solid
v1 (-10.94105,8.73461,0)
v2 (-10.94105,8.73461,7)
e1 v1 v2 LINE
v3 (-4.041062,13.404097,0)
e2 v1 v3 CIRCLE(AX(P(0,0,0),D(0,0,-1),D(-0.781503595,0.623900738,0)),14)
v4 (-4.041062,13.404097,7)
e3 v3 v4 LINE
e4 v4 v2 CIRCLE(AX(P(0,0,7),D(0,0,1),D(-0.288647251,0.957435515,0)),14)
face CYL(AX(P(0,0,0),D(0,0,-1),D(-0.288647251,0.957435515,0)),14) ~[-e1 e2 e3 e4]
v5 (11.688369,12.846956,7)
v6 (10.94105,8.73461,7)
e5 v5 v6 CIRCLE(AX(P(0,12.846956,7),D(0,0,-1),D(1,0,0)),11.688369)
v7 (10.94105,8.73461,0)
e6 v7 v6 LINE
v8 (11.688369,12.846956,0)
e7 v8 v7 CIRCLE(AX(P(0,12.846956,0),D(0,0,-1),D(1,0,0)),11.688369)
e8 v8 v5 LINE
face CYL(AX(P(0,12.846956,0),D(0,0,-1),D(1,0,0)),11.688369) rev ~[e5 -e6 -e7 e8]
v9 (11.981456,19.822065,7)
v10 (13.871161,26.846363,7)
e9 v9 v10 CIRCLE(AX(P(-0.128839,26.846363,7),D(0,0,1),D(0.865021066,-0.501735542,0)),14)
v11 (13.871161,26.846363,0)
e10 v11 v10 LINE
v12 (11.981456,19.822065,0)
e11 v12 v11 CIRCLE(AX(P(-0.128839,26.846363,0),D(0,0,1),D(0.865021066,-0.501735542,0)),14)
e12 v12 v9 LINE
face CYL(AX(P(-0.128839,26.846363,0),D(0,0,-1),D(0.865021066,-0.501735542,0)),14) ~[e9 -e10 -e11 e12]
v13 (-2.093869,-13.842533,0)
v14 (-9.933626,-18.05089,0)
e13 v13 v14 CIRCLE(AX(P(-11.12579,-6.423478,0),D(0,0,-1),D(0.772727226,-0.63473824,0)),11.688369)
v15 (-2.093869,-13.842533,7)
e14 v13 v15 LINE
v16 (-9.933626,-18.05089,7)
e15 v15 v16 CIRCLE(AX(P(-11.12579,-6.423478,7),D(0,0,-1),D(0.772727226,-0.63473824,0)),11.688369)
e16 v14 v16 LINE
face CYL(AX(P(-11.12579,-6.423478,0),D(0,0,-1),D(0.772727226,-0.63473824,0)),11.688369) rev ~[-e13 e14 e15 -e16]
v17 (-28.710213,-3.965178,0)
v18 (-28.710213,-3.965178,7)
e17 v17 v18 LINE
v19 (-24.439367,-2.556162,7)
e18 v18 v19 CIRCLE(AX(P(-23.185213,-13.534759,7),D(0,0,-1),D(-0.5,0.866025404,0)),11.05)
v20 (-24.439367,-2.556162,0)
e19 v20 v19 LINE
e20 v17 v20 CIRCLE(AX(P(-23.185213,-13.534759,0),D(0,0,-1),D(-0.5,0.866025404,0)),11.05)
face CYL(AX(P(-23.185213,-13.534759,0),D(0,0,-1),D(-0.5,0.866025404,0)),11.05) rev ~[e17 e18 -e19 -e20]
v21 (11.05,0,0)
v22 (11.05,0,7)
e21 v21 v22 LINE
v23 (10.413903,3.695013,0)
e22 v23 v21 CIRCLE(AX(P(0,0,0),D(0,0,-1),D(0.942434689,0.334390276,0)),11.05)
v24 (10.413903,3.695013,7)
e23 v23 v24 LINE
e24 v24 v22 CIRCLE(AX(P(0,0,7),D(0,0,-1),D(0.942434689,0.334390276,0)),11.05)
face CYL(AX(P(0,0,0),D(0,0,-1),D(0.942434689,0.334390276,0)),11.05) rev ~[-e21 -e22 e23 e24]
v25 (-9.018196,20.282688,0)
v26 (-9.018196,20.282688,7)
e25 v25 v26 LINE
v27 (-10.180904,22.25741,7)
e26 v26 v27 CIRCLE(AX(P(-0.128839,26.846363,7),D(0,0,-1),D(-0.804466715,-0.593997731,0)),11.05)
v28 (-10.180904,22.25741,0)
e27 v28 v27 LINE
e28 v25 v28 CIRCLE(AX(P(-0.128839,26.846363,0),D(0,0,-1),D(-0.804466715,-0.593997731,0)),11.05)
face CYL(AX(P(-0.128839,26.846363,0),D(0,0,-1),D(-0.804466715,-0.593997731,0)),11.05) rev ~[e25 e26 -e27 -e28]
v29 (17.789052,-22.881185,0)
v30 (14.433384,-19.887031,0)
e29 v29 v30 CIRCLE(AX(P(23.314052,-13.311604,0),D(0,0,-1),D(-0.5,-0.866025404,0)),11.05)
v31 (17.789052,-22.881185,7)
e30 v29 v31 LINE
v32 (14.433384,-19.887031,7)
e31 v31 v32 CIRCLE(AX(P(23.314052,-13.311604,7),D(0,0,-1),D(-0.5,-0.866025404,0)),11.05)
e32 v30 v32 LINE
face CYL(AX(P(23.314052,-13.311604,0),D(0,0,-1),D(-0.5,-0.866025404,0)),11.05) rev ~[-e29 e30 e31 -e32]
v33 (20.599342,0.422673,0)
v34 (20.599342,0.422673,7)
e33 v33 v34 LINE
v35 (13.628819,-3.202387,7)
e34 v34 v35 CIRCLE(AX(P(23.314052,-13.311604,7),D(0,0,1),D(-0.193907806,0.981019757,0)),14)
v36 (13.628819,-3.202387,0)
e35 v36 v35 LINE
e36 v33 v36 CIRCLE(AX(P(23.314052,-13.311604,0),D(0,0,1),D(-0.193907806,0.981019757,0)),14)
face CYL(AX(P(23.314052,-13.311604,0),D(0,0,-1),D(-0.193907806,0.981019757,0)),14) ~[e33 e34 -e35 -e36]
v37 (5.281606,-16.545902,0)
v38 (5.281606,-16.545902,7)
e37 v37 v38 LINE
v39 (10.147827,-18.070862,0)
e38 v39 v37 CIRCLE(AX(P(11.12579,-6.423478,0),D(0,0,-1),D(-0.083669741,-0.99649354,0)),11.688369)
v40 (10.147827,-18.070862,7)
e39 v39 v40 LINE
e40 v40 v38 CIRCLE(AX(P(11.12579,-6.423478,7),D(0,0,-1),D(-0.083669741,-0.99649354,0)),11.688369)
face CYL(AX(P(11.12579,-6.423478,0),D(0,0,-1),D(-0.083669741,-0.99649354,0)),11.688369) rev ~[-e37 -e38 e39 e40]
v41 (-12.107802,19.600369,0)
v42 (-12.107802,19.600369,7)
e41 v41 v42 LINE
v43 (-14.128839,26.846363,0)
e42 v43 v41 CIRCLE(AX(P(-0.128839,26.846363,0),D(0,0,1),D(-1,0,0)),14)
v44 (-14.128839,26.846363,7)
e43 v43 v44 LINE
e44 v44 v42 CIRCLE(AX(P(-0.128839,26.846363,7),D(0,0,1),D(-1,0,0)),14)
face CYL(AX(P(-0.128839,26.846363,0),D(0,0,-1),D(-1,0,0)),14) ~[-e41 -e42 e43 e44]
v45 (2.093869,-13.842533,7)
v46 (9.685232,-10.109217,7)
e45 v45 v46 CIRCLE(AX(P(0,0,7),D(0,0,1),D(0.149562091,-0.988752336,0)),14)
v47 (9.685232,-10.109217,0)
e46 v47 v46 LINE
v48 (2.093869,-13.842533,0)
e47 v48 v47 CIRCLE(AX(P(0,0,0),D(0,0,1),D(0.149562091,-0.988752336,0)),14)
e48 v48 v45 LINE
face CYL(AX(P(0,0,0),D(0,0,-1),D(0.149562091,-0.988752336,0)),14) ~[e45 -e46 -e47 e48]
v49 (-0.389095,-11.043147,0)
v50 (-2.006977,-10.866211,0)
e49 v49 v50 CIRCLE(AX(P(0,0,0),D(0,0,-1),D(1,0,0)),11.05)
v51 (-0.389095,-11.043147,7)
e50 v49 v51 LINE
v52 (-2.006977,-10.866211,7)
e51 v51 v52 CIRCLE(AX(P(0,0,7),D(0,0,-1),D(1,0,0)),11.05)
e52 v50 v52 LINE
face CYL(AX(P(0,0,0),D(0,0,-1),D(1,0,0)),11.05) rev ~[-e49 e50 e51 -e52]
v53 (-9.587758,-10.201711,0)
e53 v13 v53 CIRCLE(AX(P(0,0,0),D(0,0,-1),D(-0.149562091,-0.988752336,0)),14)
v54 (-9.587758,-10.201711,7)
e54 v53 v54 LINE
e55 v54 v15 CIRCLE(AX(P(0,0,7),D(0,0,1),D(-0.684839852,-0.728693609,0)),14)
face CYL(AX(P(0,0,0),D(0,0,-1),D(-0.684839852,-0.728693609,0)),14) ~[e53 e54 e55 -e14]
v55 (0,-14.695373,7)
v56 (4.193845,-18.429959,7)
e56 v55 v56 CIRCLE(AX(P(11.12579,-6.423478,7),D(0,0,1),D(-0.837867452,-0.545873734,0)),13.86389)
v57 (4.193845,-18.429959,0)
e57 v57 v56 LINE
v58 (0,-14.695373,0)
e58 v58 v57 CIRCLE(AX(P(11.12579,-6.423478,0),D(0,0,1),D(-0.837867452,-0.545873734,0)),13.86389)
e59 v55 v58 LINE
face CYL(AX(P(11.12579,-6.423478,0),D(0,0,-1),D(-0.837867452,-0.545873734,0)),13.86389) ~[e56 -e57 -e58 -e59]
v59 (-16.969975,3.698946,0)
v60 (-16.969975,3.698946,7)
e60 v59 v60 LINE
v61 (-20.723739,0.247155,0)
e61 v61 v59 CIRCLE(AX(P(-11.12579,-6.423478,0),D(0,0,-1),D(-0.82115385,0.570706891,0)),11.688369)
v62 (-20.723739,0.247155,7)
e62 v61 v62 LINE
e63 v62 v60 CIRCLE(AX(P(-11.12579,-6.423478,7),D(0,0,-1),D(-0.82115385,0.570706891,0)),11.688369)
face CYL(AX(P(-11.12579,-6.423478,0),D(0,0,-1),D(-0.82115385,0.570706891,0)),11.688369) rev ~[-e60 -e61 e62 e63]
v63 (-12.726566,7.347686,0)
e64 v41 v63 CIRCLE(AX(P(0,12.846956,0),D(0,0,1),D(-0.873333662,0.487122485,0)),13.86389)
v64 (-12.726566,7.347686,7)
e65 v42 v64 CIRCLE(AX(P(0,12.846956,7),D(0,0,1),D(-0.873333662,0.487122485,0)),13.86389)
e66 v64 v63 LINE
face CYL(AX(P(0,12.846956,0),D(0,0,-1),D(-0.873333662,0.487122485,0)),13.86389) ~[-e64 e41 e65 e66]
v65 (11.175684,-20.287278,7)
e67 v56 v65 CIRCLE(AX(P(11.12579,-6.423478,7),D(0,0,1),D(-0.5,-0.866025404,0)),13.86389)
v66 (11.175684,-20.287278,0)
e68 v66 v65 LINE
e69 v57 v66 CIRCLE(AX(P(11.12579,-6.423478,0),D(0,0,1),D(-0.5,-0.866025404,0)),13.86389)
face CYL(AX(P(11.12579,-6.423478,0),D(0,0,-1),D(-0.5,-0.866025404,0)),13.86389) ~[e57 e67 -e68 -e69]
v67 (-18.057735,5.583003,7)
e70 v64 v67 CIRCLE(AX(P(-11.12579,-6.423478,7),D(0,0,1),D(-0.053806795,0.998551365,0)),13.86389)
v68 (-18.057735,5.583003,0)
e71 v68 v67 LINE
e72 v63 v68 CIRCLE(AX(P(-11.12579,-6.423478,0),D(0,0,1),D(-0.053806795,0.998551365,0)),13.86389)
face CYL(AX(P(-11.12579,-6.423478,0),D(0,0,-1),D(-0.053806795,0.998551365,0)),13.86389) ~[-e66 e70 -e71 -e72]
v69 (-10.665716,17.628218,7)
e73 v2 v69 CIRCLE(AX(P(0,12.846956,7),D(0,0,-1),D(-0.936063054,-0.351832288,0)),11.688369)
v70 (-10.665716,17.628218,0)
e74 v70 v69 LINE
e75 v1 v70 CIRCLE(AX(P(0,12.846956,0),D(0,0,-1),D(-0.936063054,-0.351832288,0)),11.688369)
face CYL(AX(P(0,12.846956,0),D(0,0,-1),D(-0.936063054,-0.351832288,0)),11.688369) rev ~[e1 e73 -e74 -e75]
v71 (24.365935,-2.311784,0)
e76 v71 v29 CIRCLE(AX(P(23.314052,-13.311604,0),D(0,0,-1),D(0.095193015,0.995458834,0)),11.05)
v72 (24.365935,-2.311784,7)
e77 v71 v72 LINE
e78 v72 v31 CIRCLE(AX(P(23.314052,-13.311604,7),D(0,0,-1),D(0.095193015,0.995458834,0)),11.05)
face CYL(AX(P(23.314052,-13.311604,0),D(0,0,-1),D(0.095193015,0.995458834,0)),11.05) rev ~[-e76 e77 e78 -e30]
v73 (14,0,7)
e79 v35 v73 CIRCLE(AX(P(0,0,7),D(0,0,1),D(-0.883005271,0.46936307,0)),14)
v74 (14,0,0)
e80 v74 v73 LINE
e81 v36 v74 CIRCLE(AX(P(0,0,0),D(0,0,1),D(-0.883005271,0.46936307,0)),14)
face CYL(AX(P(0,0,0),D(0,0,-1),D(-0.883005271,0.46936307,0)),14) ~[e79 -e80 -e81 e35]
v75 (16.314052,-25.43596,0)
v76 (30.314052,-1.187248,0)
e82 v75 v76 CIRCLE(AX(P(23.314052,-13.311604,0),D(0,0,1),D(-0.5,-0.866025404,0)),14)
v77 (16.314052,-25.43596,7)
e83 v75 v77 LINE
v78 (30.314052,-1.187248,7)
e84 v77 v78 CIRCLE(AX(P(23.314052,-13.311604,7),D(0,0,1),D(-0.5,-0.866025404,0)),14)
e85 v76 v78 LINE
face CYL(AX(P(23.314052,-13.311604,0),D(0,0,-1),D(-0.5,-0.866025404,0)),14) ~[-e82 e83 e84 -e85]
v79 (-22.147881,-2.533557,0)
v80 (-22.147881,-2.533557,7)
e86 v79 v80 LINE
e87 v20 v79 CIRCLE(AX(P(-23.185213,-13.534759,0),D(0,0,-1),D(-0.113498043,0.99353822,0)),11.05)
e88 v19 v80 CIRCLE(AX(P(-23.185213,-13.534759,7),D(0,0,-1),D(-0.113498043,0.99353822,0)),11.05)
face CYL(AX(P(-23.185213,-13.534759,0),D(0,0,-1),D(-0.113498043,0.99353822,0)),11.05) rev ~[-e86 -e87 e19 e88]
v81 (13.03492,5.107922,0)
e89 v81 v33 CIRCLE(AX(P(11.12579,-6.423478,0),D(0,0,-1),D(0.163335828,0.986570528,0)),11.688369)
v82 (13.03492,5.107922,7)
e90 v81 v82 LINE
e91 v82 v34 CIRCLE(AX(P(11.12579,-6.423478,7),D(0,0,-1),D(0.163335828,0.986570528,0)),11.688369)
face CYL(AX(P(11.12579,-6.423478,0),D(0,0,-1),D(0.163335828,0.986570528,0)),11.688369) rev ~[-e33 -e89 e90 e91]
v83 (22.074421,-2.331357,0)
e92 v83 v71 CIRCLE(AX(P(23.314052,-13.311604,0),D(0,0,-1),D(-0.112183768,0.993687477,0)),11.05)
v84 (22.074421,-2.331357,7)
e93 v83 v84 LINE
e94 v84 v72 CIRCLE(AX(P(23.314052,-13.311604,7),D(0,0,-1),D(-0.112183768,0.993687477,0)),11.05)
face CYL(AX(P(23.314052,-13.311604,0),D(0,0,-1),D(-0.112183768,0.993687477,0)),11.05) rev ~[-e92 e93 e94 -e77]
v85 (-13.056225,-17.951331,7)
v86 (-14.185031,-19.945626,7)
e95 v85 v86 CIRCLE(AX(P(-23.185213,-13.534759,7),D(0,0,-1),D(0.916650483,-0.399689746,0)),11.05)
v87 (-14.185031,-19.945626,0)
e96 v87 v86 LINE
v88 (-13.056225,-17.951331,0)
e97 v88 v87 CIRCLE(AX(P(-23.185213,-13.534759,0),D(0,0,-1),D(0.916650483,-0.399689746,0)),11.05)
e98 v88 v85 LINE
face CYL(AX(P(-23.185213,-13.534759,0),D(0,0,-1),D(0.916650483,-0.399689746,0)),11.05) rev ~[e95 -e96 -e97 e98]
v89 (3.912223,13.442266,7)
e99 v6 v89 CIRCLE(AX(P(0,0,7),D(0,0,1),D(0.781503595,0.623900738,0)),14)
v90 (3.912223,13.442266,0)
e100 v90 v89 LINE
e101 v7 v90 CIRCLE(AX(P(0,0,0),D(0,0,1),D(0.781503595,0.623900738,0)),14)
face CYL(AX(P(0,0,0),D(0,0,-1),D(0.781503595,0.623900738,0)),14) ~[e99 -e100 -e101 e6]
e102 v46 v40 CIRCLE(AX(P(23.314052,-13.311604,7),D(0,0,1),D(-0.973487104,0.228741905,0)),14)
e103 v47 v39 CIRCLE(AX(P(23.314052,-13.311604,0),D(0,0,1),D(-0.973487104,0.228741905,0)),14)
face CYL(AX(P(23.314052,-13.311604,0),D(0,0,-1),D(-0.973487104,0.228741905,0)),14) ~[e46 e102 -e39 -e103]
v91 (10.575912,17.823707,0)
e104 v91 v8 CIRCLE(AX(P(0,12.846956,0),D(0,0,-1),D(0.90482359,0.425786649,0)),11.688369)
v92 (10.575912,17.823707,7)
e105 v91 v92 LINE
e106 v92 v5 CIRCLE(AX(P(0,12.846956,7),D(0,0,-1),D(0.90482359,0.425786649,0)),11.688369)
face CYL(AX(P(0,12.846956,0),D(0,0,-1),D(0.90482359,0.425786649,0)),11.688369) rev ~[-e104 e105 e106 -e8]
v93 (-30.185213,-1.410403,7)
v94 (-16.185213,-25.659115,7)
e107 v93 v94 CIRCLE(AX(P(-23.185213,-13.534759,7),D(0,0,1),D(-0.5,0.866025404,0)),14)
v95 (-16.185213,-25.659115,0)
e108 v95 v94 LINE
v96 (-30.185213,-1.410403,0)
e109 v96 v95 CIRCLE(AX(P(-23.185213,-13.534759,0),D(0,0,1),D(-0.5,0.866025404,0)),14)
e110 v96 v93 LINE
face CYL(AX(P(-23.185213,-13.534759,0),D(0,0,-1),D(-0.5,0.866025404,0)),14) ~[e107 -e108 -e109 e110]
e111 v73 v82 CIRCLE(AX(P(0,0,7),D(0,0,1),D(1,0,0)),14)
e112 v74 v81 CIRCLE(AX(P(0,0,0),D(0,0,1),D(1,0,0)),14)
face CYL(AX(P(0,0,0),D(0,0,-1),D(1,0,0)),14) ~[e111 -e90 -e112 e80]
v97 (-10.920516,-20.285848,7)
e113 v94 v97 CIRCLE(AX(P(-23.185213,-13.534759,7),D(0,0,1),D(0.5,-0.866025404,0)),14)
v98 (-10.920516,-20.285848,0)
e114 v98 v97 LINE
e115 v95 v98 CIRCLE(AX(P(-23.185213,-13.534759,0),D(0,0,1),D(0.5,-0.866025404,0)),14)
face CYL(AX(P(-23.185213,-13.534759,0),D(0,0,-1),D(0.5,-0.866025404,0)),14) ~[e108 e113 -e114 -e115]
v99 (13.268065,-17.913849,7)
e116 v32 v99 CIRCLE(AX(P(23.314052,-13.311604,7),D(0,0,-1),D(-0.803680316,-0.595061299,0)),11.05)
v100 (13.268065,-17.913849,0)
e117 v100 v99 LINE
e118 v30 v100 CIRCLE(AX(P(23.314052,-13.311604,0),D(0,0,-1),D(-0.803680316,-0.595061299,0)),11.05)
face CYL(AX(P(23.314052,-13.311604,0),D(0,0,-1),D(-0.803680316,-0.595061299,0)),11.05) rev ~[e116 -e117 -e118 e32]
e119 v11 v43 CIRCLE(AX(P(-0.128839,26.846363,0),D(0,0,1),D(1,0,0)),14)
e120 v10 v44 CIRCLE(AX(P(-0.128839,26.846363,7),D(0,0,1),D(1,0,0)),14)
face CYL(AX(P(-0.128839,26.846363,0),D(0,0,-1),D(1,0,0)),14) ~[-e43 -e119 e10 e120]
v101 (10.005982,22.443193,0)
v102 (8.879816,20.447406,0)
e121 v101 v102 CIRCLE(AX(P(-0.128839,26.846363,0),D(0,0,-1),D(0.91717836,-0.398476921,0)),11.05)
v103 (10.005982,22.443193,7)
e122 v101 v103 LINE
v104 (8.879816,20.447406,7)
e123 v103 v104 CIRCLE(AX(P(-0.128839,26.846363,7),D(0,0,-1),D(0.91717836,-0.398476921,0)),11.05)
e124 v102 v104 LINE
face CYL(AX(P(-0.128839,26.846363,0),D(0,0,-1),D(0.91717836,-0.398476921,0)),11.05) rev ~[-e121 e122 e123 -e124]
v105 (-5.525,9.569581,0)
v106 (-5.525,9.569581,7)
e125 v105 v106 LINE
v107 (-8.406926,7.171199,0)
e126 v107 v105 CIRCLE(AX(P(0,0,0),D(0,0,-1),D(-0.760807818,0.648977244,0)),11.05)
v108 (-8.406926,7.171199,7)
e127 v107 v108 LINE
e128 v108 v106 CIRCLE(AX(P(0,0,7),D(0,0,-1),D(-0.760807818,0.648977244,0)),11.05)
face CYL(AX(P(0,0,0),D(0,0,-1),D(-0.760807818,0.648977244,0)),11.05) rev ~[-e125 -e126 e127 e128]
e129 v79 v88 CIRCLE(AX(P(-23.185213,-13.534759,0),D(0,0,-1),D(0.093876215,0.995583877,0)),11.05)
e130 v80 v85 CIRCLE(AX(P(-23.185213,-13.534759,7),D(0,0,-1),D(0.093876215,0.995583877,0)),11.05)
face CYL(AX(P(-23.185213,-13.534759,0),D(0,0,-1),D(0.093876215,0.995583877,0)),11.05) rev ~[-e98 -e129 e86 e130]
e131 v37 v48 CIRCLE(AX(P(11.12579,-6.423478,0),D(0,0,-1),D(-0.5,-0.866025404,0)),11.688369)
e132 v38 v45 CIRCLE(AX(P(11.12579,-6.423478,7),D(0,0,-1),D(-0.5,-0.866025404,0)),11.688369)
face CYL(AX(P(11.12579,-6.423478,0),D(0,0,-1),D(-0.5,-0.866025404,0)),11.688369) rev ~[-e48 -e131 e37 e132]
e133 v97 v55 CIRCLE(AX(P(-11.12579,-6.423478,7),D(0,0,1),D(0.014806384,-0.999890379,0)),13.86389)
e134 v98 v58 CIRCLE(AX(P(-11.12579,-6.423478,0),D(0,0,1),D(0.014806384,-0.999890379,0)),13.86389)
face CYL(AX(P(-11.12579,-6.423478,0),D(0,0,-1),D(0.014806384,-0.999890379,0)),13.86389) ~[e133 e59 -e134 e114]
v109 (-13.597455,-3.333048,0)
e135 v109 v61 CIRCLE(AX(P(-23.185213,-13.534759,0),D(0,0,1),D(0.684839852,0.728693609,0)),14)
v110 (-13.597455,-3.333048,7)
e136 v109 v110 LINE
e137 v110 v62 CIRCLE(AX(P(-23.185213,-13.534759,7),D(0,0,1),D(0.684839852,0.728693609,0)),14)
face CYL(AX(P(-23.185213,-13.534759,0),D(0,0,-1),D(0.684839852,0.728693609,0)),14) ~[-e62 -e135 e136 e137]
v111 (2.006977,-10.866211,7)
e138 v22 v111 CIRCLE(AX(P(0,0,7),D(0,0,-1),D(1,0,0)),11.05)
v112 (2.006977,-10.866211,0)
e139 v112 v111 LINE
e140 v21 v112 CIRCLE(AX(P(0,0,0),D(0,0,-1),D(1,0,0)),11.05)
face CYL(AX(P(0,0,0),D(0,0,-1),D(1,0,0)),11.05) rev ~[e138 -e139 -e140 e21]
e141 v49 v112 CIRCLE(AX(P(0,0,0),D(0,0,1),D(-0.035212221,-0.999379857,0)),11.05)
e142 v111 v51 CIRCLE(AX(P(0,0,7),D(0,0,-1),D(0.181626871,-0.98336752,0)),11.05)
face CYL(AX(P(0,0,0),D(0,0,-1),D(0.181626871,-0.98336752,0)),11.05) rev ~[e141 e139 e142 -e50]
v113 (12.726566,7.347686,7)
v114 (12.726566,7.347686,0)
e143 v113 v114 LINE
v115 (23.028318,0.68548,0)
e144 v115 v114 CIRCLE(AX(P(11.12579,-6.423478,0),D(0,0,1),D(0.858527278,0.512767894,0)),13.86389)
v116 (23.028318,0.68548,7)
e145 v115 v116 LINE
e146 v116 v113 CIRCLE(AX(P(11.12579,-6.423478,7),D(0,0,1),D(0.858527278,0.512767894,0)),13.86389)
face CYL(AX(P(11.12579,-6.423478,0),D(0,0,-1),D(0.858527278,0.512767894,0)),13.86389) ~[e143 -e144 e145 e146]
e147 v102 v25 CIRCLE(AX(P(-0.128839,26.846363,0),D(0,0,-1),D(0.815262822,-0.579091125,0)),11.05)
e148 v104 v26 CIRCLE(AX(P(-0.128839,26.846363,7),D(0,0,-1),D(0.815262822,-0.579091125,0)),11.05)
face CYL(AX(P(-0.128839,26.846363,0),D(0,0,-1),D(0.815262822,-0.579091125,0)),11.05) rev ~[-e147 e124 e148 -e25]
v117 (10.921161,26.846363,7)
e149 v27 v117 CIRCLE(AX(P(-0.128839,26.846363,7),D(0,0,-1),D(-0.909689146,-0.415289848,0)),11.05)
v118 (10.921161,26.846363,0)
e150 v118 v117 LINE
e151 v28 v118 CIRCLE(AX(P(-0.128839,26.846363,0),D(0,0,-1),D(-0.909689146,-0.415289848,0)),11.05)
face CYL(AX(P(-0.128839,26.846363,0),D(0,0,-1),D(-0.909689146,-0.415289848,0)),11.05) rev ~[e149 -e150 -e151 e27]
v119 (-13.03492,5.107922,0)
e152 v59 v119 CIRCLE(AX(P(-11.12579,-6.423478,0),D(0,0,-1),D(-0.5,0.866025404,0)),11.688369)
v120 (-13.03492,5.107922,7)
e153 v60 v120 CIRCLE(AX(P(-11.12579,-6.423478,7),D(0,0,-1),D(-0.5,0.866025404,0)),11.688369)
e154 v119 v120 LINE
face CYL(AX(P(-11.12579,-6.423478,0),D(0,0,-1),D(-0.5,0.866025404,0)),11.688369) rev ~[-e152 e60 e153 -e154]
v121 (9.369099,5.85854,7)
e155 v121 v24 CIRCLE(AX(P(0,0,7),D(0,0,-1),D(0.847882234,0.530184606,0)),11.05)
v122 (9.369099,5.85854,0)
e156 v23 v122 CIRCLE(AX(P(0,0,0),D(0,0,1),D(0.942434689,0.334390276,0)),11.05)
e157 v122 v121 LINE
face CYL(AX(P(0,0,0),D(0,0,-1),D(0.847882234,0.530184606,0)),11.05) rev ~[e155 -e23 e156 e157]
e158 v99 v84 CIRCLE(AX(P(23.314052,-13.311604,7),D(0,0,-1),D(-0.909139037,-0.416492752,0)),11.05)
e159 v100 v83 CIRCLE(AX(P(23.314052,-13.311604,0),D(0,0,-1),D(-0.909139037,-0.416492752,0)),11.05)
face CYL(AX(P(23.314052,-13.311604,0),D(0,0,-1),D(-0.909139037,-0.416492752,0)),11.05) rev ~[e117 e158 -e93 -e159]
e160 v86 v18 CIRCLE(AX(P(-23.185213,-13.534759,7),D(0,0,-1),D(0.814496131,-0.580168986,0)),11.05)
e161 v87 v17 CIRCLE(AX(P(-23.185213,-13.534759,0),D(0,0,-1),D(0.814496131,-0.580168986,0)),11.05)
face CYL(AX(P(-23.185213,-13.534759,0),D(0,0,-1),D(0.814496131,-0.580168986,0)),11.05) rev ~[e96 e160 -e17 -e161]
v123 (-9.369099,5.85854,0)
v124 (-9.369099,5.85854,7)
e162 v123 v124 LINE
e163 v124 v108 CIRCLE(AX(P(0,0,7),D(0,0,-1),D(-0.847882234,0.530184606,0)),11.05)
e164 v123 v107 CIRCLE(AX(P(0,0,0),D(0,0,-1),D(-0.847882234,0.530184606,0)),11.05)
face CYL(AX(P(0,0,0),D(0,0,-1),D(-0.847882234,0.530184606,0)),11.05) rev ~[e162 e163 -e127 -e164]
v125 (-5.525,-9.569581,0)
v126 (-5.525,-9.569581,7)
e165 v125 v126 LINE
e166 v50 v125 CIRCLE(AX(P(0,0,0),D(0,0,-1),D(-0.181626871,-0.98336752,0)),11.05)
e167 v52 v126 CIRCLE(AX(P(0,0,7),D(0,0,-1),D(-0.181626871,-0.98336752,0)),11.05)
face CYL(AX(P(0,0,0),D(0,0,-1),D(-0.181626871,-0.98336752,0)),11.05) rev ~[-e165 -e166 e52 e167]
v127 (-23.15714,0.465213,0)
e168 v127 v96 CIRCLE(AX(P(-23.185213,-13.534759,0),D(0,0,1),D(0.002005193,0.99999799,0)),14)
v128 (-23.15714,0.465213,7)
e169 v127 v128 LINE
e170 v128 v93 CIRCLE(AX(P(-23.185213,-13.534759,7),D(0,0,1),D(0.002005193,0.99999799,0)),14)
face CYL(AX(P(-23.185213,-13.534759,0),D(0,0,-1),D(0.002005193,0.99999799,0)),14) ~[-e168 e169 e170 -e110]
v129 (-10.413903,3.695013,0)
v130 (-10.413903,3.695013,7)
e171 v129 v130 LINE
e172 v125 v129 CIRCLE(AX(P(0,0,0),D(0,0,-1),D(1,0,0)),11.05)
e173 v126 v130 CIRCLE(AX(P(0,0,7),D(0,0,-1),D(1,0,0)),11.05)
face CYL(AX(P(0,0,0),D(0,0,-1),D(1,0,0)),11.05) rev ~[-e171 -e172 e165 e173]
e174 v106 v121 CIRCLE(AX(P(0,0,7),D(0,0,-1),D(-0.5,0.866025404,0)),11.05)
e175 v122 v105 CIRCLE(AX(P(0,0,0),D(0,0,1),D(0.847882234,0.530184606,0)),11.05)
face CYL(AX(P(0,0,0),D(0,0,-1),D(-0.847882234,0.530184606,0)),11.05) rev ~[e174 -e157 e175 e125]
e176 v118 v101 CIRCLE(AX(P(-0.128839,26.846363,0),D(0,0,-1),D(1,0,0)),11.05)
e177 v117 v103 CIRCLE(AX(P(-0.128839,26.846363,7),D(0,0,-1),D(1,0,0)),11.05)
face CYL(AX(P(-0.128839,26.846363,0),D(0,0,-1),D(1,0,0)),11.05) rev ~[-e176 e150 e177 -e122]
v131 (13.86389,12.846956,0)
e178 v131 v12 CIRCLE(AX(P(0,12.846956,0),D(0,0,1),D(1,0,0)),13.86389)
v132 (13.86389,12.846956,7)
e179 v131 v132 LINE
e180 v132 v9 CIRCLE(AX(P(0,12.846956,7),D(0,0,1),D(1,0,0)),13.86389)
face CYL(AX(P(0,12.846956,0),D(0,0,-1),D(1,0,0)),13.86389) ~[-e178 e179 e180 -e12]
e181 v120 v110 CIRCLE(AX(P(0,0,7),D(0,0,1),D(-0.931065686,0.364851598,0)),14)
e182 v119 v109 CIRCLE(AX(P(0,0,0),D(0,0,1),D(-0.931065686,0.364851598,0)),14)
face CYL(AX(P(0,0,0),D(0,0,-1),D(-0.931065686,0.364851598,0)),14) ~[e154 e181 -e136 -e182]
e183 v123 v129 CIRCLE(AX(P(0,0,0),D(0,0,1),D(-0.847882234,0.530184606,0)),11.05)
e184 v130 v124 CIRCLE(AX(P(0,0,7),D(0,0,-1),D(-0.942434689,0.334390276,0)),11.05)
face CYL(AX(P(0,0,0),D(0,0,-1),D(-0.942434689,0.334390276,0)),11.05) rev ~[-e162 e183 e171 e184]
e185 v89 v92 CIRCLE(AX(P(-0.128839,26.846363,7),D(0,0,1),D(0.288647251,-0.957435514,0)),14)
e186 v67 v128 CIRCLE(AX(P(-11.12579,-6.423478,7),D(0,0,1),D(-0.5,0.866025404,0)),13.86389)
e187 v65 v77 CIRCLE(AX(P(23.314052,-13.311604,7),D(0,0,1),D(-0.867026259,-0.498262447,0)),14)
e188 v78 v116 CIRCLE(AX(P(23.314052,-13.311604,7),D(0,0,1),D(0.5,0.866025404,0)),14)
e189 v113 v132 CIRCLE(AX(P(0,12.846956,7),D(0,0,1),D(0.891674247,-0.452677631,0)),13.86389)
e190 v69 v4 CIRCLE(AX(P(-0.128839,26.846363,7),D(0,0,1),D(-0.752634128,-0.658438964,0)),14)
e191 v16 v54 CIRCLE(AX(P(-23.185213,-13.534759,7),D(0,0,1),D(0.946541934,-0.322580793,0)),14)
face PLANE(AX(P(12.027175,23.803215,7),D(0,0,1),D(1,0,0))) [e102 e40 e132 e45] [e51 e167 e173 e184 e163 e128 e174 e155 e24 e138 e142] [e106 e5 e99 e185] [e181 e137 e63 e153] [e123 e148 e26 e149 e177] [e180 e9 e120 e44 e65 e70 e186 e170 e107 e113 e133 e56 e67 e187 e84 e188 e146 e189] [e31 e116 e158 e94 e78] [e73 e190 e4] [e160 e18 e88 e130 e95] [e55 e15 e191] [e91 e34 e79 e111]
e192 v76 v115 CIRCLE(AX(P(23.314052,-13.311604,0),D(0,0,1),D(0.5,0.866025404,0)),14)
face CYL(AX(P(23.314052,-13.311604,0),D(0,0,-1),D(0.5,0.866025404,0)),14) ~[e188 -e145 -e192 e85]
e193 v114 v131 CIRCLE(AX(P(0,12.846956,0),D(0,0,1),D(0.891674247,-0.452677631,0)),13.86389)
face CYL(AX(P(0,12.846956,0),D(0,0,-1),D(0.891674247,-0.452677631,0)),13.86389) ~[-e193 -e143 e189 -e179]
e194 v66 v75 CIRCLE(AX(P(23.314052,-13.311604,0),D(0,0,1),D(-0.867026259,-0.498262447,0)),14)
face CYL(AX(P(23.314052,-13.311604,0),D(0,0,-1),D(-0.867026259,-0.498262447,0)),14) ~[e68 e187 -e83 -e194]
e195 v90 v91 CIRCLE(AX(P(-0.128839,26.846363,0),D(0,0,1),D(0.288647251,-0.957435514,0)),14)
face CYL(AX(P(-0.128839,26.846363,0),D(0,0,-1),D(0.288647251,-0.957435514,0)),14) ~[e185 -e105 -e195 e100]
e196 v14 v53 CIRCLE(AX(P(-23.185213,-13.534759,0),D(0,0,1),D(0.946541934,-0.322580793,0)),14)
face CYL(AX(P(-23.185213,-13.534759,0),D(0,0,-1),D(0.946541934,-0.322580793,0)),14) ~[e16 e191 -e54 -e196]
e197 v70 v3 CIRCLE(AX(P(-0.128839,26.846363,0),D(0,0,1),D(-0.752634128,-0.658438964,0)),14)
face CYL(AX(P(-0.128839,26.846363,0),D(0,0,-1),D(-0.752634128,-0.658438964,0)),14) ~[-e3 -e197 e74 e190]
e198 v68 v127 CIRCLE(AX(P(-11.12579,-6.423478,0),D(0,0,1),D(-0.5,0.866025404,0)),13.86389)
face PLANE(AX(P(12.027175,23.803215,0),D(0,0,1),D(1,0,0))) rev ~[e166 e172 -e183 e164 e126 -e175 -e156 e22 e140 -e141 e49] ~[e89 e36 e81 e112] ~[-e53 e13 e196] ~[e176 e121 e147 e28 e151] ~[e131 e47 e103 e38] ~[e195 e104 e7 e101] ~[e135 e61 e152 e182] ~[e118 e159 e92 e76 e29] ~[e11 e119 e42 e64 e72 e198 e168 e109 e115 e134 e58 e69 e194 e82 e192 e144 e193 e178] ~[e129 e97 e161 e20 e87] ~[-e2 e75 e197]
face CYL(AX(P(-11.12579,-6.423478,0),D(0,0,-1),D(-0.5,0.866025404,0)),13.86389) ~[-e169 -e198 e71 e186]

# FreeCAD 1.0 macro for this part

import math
import FreeCAD as App
import Part
import Sketcher
from FreeCAD import Vector

doc = App.newDocument("Part")
body = doc.addObject("PartDesign::Body", "Body")

# Sketch on XY plane
sketch1 = body.newObject("Sketcher::SketchObject", "Sketch")
sketch1.AttachmentSupport = (doc.getObject("XY_Plane"), [""])
sketch1.MapMode = "FlatFace"
sketch1.addGeometry(Part.ArcOfCircle(Part.Circle(Vector(0, 0, 0), Vector(0, 0, 1), 14), math.radians(0), math.radians(28)), False)
sketch1.addGeometry(Part.ArcOfCircle(Part.Circle(Vector(0, 12.8, 0), Vector(0, 0, 1), 13.9), math.radians(-27), math.radians(0)), False)
sketch1.addGeometry(Part.ArcOfCircle(Part.Circle(Vector(0, 12.8, 0), Vector(0, 0, 1), 13.9), math.radians(0), math.radians(30)), False)
sketch1.addGeometry(Part.ArcOfCircle(Part.Circle(Vector(-0.1, 26.8, 0), Vector(0, 0, 1), 14), math.radians(-30), math.radians(0)), False)
sketch1.addGeometry(Part.ArcOfCircle(Part.Circle(Vector(-0.1, 26.8, 0), Vector(0, 0, 1), 14), math.radians(0), math.radians(180)), False)
sketch1.addGeometry(Part.ArcOfCircle(Part.Circle(Vector(-0.1, 26.8, 0), Vector(0, 0, 1), 14), math.radians(-180), math.radians(-149)), False)
sketch1.addGeometry(Part.ArcOfCircle(Part.Circle(Vector(0, 12.8, 0), Vector(0, 0, 1), 13.9), math.radians(151), math.radians(207)), False)
sketch1.addGeometry(Part.ArcOfCircle(Part.Circle(Vector(0, 0, 0), Vector(0, 0, 1), 14), math.radians(152), math.radians(360)), False)
sketch1.addGeometry(Part.ArcOfCircle(Part.Circle(Vector(0, 0, 0), Vector(0, 0, 1), 11.1), math.radians(19.54), math.radians(32.02)), False)
sketch1.addGeometry(Part.ArcOfCircle(Part.Circle(Vector(0, 0, 0), Vector(0, 0, 1), 11), math.radians(0), math.radians(19.54)), False)
sketch1.addGeometry(Part.ArcOfCircle(Part.Circle(Vector(0, 0, 0), Vector(0, 0, 1), 11.1), math.radians(160), math.radians(360)), False)
sketch1.addGeometry(Part.ArcOfCircle(Part.Circle(Vector(0, 0, 0), Vector(0, 0, 1), 11.1), math.radians(147.98), math.radians(160.46)), False)
sketch1.addGeometry(Part.ArcOfCircle(Part.Circle(Vector(0, 0, 0), Vector(0, 0, 1), 11.1), math.radians(32), math.radians(148)), False)
sketch1.addGeometry(Part.ArcOfCircle(Part.Circle(Vector(-0.1, 26.8, 0), Vector(0, 0, 1), 14), math.radians(-139), math.radians(-106)), False)
sketch1.addGeometry(Part.ArcOfCircle(Part.Circle(Vector(0, 0, 0), Vector(0, 0, 1), 14), math.radians(107), math.radians(141)), False)
sketch1.addGeometry(Part.ArcOfCircle(Part.Circle(Vector(0, 12.8, 0), Vector(0, 0, 1), 11.7), math.radians(156), math.radians(201)), False)
sketch1.addGeometry(Part.ArcOfCircle(Part.Circle(Vector(0, 0, 0), Vector(0, 0, 1), 14), math.radians(39), math.radians(74)), False)
sketch1.addGeometry(Part.ArcOfCircle(Part.Circle(Vector(-0.1, 26.8, 0), Vector(0, 0, 1), 14), math.radians(-73), math.radians(-40)), False)
sketch1.addGeometry(Part.ArcOfCircle(Part.Circle(Vector(0, 12.8, 0), Vector(0, 0, 1), 11.7), math.radians(0), math.radians(25)), False)
sketch1.addGeometry(Part.ArcOfCircle(Part.Circle(Vector(0, 12.8, 0), Vector(0, 0, 1), 11.7), math.radians(-21), math.radians(0)), False)
sketch1.addGeometry(Part.ArcOfCircle(Part.Circle(Vector(-0.1, 26.8, 0), Vector(0, 0, 1), 11), math.radians(-155.46), math.radians(-143.56)), False)
sketch1.addGeometry(Part.ArcOfCircle(Part.Circle(Vector(-0.1, 26.8, 0), Vector(0, 0, 1), 11), math.radians(0), math.radians(205)), False)
sketch1.addGeometry(Part.ArcOfCircle(Part.Circle(Vector(-0.1, 26.8, 0), Vector(0, 0, 1), 11), math.radians(-23), math.radians(0)), False)
sketch1.addGeometry(Part.ArcOfCircle(Part.Circle(Vector(-0.1, 26.8, 0), Vector(0, 0, 1), 11.1), math.radians(-35.39), math.radians(-23.48)), False)
sketch1.addGeometry(Part.ArcOfCircle(Part.Circle(Vector(-0.1, 26.8, 0), Vector(0, 0, 1), 11.1), math.radians(-144), math.radians(-35)), False)
sketch1.addConstraint(Sketcher.Constraint("Coincident", 0, 2, 1, 1))
sketch1.addConstraint(Sketcher.Constraint("Tangent", 1, 2, 2, 1))
sketch1.addConstraint(Sketcher.Constraint("Coincident", 2, 2, 3, 1))
sketch1.addConstraint(Sketcher.Constraint("Tangent", 3, 2, 4, 1))
sketch1.addConstraint(Sketcher.Constraint("Tangent", 4, 2, 5, 1))
sketch1.addConstraint(Sketcher.Constraint("Coincident", 5, 2, 6, 1))
sketch1.addConstraint(Sketcher.Constraint("Coincident", 6, 2, 7, 1))
sketch1.addConstraint(Sketcher.Constraint("Tangent", 7, 2, 0, 1))
sketch1.addConstraint(Sketcher.Constraint("Tangent", 8, 1, 9, 2))
sketch1.addConstraint(Sketcher.Constraint("Tangent", 9, 1, 10, 2))
sketch1.addConstraint(Sketcher.Constraint("Tangent", 10, 1, 11, 2))
sketch1.addConstraint(Sketcher.Constraint("Tangent", 11, 1, 12, 2))
sketch1.addConstraint(Sketcher.Constraint("Tangent", 12, 1, 8, 2))
sketch1.addConstraint(Sketcher.Constraint("Coincident", 13, 2, 14, 1))
sketch1.addConstraint(Sketcher.Constraint("Coincident", 14, 2, 15, 2))
sketch1.addConstraint(Sketcher.Constraint("Coincident", 15, 1, 13, 1))
sketch1.addConstraint(Sketcher.Constraint("Coincident", 16, 2, 17, 1))
sketch1.addConstraint(Sketcher.Constraint("Coincident", 17, 2, 18, 2))
sketch1.addConstraint(Sketcher.Constraint("Tangent", 18, 1, 19, 2))
sketch1.addConstraint(Sketcher.Constraint("Coincident", 19, 1, 16, 1))
sketch1.addConstraint(Sketcher.Constraint("Tangent", 20, 1, 21, 2))
sketch1.addConstraint(Sketcher.Constraint("Tangent", 21, 1, 22, 2))
sketch1.addConstraint(Sketcher.Constraint("Tangent", 22, 1, 23, 2))
sketch1.addConstraint(Sketcher.Constraint("Tangent", 23, 1, 24, 2))
sketch1.addConstraint(Sketcher.Constraint("Tangent", 24, 1, 20, 2))
sketch1.addConstraint(Sketcher.Constraint("Coincident", 0, 3, -1, 1))
sketch1.addConstraint(Sketcher.Constraint("Coincident", 8, 3, -1, 1))
sketch1.addConstraint(Sketcher.Constraint("Coincident", 10, 3, -1, 1))
sketch1.addConstraint(Sketcher.Constraint("Coincident", 14, 3, -1, 1))
sketch1.addConstraint(Sketcher.Constraint("Coincident", 16, 3, -1, 1))
sketch1.addConstraint(Sketcher.Constraint("Coincident", 6, 3, 1, 3))
sketch1.addConstraint(Sketcher.Constraint("Coincident", 13, 3, 3, 3))
sketch1.addConstraint(Sketcher.Constraint("Coincident", 15, 3, 1, 3))
sketch1.addConstraint(Sketcher.Constraint("Coincident", 17, 3, 3, 3))
sketch1.addConstraint(Sketcher.Constraint("Coincident", 18, 3, 1, 3))
sketch1.addConstraint(Sketcher.Constraint("Coincident", 20, 3, 3, 3))
sketch1.addConstraint(Sketcher.Constraint("Coincident", 22, 3, 3, 3))
sketch1.addConstraint(Sketcher.Constraint("Equal", 1, 2))
sketch1.addConstraint(Sketcher.Constraint("Equal", 0, 3))
sketch1.addConstraint(Sketcher.Constraint("Equal", 3, 4))
sketch1.addConstraint(Sketcher.Constraint("Equal", 4, 5))
sketch1.addConstraint(Sketcher.Constraint("Equal", 2, 6))
sketch1.addConstraint(Sketcher.Constraint("Equal", 5, 7))
sketch1.addConstraint(Sketcher.Constraint("Equal", 7, 13))
sketch1.addConstraint(Sketcher.Constraint("Equal", 13, 14))
sketch1.addConstraint(Sketcher.Constraint("Equal", 14, 16))
sketch1.addConstraint(Sketcher.Constraint("Equal", 16, 17))
sketch1.addConstraint(Sketcher.Constraint("Equal", 15, 18))
sketch1.addConstraint(Sketcher.Constraint("Equal", 18, 19))
sketch1.addConstraint(Sketcher.Constraint("Equal", 12, 20))
sketch1.addConstraint(Sketcher.Constraint("PointOnObject", 1, 3, -2))
sketch1.addConstraint(Sketcher.Constraint("PointOnObject", 7, 2, -1))
sketch1.addConstraint(Sketcher.Constraint("PointOnObject", 9, 1, -1))
sketch1.addConstraint(Sketcher.Constraint("Horizontal", 19, 3, 1, 2))
sketch1.addConstraint(Sketcher.Constraint("Horizontal", 24, 3, 3, 2))
sketch1.addConstraint(Sketcher.Constraint("Horizontal", 3, 2, 4, 2))
sketch1.addConstraint(Sketcher.Constraint("Horizontal", 8, 1, 10, 1))
sketch1.addConstraint(Sketcher.Constraint("Horizontal", 11, 1, 12, 1))
sketch1.addConstraint(Sketcher.Constraint("Horizontal", 1, 2, 18, 1))
sketch1.addConstraint(Sketcher.Constraint("Horizontal", 4, 2, 21, 1))
sketch1.addConstraint(Sketcher.Constraint("Radius", 0, 14.0))
sketch1.addConstraint(Sketcher.Constraint("Radius", 8, 11.05))
sketch1.addConstraint(Sketcher.Constraint("Radius", 1, 13.86389))
sketch1.addConstraint(Sketcher.Constraint("Radius", 15, 11.688369))
sketch1.addConstraint(Sketcher.Constraint("DistanceX", 5, 2, -1, 1, 12.107802))
sketch1.addConstraint(Sketcher.Constraint("DistanceX", 11, 1, -1, 1, 9.369099))
sketch1.addConstraint(Sketcher.Constraint("DistanceX", 5, 2, 20, 1, 1.926898))
sketch1.addConstraint(Sketcher.Constraint("DistanceY", 17, 2, 23, 1, 2.623699))
sketch1.addConstraint(Sketcher.Constraint("DistanceX", 3, 3, -1, 1, 0.128839))
sketch1.addConstraint(Sketcher.Constraint("DistanceY", -1, 1, 5, 2, 19.600369))
sketch1.addConstraint(Sketcher.Constraint("DistanceY", -1, 1, 24, 1, 20.282688))
sketch1.addConstraint(Sketcher.Constraint("DistanceX", 8, 1, 0, 2, 1.94817))
sketch1.addConstraint(Sketcher.Constraint("DistanceX", 22, 1, 21, 1, 0.915179))
pad1 = body.newObject("PartDesign::Pad", "Pad")
pad1.Profile = sketch1
pad1.Length = 7

# Sketch on XY plane
sketch2 = body.newObject("Sketcher::SketchObject", "Sketch001")
sketch2.AttachmentSupport = (doc.getObject("XY_Plane"), [""])
sketch2.MapMode = "FlatFace"
sketch2.addGeometry(Part.ArcOfCircle(Part.Circle(Vector(0, 0, 0), Vector(0, 0, 1), 14), math.radians(0), math.radians(28)), False)
sketch2.addGeometry(Part.ArcOfCircle(Part.Circle(Vector(0, 12.8, 0), Vector(0, 0, 1), 13.9), math.radians(-27), math.radians(0)), False)
sketch2.addGeometry(Part.ArcOfCircle(Part.Circle(Vector(0, 12.8, 0), Vector(0, 0, 1), 13.9), math.radians(0), math.radians(30)), False)
sketch2.addGeometry(Part.ArcOfCircle(Part.Circle(Vector(-0.1, 26.8, 0), Vector(0, 0, 1), 14), math.radians(-30), math.radians(0)), False)
sketch2.addGeometry(Part.ArcOfCircle(Part.Circle(Vector(-0.1, 26.8, 0), Vector(0, 0, 1), 14), math.radians(0), math.radians(180)), False)
sketch2.addGeometry(Part.ArcOfCircle(Part.Circle(Vector(-0.1, 26.8, 0), Vector(0, 0, 1), 14), math.radians(-180), math.radians(-149)), False)
sketch2.addGeometry(Part.ArcOfCircle(Part.Circle(Vector(0, 12.8, 0), Vector(0, 0, 1), 13.9), math.radians(151), math.radians(207)), False)
sketch2.addGeometry(Part.ArcOfCircle(Part.Circle(Vector(0, 0, 0), Vector(0, 0, 1), 14), math.radians(152), math.radians(360)), False)
sketch2.addGeometry(Part.ArcOfCircle(Part.Circle(Vector(0, 12.8, 0), Vector(0, 0, 1), 11.7), math.radians(-21), math.radians(0)), False)
sketch2.addGeometry(Part.ArcOfCircle(Part.Circle(Vector(0, 12.8, 0), Vector(0, 0, 1), 11.7), math.radians(-36.72), math.radians(-20.6)), False)
sketch2.addGeometry(Part.ArcOfCircle(Part.Circle(Vector(0, 0, 0), Vector(0, 0, 1), 11.1), math.radians(19.54), math.radians(32.02)), False)
sketch2.addGeometry(Part.ArcOfCircle(Part.Circle(Vector(0, 0, 0), Vector(0, 0, 1), 11), math.radians(0), math.radians(19.54)), False)
sketch2.addGeometry(Part.ArcOfCircle(Part.Circle(Vector(0, 0, 0), Vector(0, 0, 1), 11.1), math.radians(160), math.radians(360)), False)
sketch2.addGeometry(Part.ArcOfCircle(Part.Circle(Vector(0, 0, 0), Vector(0, 0, 1), 11.1), math.radians(147.98), math.radians(160.46)), False)
sketch2.addGeometry(Part.ArcOfCircle(Part.Circle(Vector(0, 12.8, 0), Vector(0, 0, 1), 11.7), math.radians(-159.4), math.radians(-143.28)), False)
sketch2.addGeometry(Part.ArcOfCircle(Part.Circle(Vector(0, 12.8, 0), Vector(0, 0, 1), 11.7), math.radians(156), math.radians(201)), False)
sketch2.addGeometry(Part.ArcOfCircle(Part.Circle(Vector(0, 12.8, 0), Vector(0, 0, 1), 11.7), math.radians(140.49), math.radians(155.85)), False)
sketch2.addGeometry(Part.ArcOfCircle(Part.Circle(Vector(-0.1, 26.8, 0), Vector(0, 0, 1), 11), math.radians(-155.46), math.radians(-143.56)), False)
sketch2.addGeometry(Part.ArcOfCircle(Part.Circle(Vector(-0.1, 26.8, 0), Vector(0, 0, 1), 11), math.radians(0), math.radians(205)), False)
sketch2.addGeometry(Part.ArcOfCircle(Part.Circle(Vector(-0.1, 26.8, 0), Vector(0, 0, 1), 11), math.radians(-23), math.radians(0)), False)
sketch2.addGeometry(Part.ArcOfCircle(Part.Circle(Vector(-0.1, 26.8, 0), Vector(0, 0, 1), 11.1), math.radians(-35.39), math.radians(-23.48)), False)
sketch2.addGeometry(Part.ArcOfCircle(Part.Circle(Vector(0, 12.8, 0), Vector(0, 0, 1), 11.7), math.radians(25.2), math.radians(40.56)), False)
sketch2.addGeometry(Part.ArcOfCircle(Part.Circle(Vector(0, 12.8, 0), Vector(0, 0, 1), 11.7), math.radians(0), math.radians(25)), False)
sketch2.addConstraint(Sketcher.Constraint("Coincident", 0, 2, 1, 1))
sketch2.addConstraint(Sketcher.Constraint("Tangent", 1, 2, 2, 1))
sketch2.addConstraint(Sketcher.Constraint("Coincident", 2, 2, 3, 1))
sketch2.addConstraint(Sketcher.Constraint("Tangent", 3, 2, 4, 1))
sketch2.addConstraint(Sketcher.Constraint("Tangent", 4, 2, 5, 1))
sketch2.addConstraint(Sketcher.Constraint("Coincident", 5, 2, 6, 1))
sketch2.addConstraint(Sketcher.Constraint("Coincident", 6, 2, 7, 1))
sketch2.addConstraint(Sketcher.Constraint("Tangent", 7, 2, 0, 1))
sketch2.addConstraint(Sketcher.Constraint("Tangent", 8, 1, 9, 2))
sketch2.addConstraint(Sketcher.Constraint("Coincident", 9, 1, 10, 2))
sketch2.addConstraint(Sketcher.Constraint("Tangent", 10, 1, 11, 2))
sketch2.addConstraint(Sketcher.Constraint("Tangent", 11, 1, 12, 2))
sketch2.addConstraint(Sketcher.Constraint("Tangent", 12, 1, 13, 2))
sketch2.addConstraint(Sketcher.Constraint("Coincident", 13, 1, 14, 2))
sketch2.addConstraint(Sketcher.Constraint("Tangent", 14, 1, 15, 2))
sketch2.addConstraint(Sketcher.Constraint("Tangent", 15, 1, 16, 2))
sketch2.addConstraint(Sketcher.Constraint("Coincident", 16, 1, 17, 2))
sketch2.addConstraint(Sketcher.Constraint("Tangent", 17, 1, 18, 2))
sketch2.addConstraint(Sketcher.Constraint("Tangent", 18, 1, 19, 2))
sketch2.addConstraint(Sketcher.Constraint("Tangent", 19, 1, 20, 2))
sketch2.addConstraint(Sketcher.Constraint("Coincident", 20, 1, 21, 2))
sketch2.addConstraint(Sketcher.Constraint("Tangent", 21, 1, 22, 2))
sketch2.addConstraint(Sketcher.Constraint("Tangent", 22, 1, 8, 2))
sketch2.addConstraint(Sketcher.Constraint("Coincident", 0, 3, -1, 1))
sketch2.addConstraint(Sketcher.Constraint("Coincident", 10, 3, -1, 1))
sketch2.addConstraint(Sketcher.Constraint("Coincident", 12, 3, -1, 1))
sketch2.addConstraint(Sketcher.Constraint("Coincident", 6, 3, 1, 3))
sketch2.addConstraint(Sketcher.Constraint("Coincident", 8, 3, 1, 3))
sketch2.addConstraint(Sketcher.Constraint("Coincident", 14, 3, 1, 3))
sketch2.addConstraint(Sketcher.Constraint("Coincident", 16, 3, 1, 3))
sketch2.addConstraint(Sketcher.Constraint("Coincident", 17, 3, 3, 3))
sketch2.addConstraint(Sketcher.Constraint("Coincident", 19, 3, 3, 3))
sketch2.addConstraint(Sketcher.Constraint("Coincident", 21, 3, 1, 3))
sketch2.addConstraint(Sketcher.Constraint("Equal", 1, 2))
sketch2.addConstraint(Sketcher.Constraint("Equal", 0, 3))
sketch2.addConstraint(Sketcher.Constraint("Equal", 3, 4))
sketch2.addConstraint(Sketcher.Constraint("Equal", 4, 5))
sketch2.addConstraint(Sketcher.Constraint("Equal", 2, 6))
sketch2.addConstraint(Sketcher.Constraint("Equal", 5, 7))
sketch2.addConstraint(Sketcher.Constraint("Equal", 8, 9))
sketch2.addConstraint(Sketcher.Constraint("Equal", 12, 13))
sketch2.addConstraint(Sketcher.Constraint("Equal", 9, 14))
sketch2.addConstraint(Sketcher.Constraint("Equal", 13, 17))
sketch2.addConstraint(Sketcher.Constraint("Equal", 19, 20))
sketch2.addConstraint(Sketcher.Constraint("Symmetric", 8, 1, 14, 1, -2))
sketch2.addConstraint(Sketcher.Constraint("PointOnObject", 7, 2, -1))
sketch2.addConstraint(Sketcher.Constraint("PointOnObject", 11, 1, -1))
sketch2.addConstraint(Sketcher.Constraint("Horizontal", 22, 3, 1, 2))
sketch2.addConstraint(Sketcher.Constraint("Horizontal", 20, 3, 3, 2))
sketch2.addConstraint(Sketcher.Constraint("Horizontal", 3, 2, 4, 2))
sketch2.addConstraint(Sketcher.Constraint("Horizontal", 10, 1, 12, 1))
sketch2.addConstraint(Sketcher.Constraint("Horizontal", 4, 2, 18, 1))
sketch2.addConstraint(Sketcher.Constraint("Horizontal", 1, 2, 22, 1))
sketch2.addConstraint(Sketcher.Constraint("Radius", 0, 14.0))
sketch2.addConstraint(Sketcher.Constraint("Radius", 10, 11.05))
sketch2.addConstraint(Sketcher.Constraint("Radius", 1, 13.86389))
sketch2.addConstraint(Sketcher.Constraint("Radius", 8, 11.688369))
sketch2.addConstraint(Sketcher.Constraint("DistanceX", 5, 2, -1, 1, 12.107802))
sketch2.addConstraint(Sketcher.Constraint("DistanceX", -1, 1, 9, 1, 9.369099))
sketch2.addConstraint(Sketcher.Constraint("DistanceX", 5, 2, 17, 1, 1.926898))
sketch2.addConstraint(Sketcher.Constraint("DistanceY", 21, 1, 20, 1, 2.623699))
sketch2.addConstraint(Sketcher.Constraint("DistanceX", 3, 3, -1, 1, 0.128839))
sketch2.addConstraint(Sketcher.Constraint("DistanceX", -1, 1, 8, 1, 10.94105))
sketch2.addConstraint(Sketcher.Constraint("DistanceX", 10, 1, 0, 2, 1.94817))
sketch2.addConstraint(Sketcher.Constraint("DistanceY", 15, 1, 5, 2, 1.972151))
sketch2.addConstraint(Sketcher.Constraint("DistanceX", 19, 1, 18, 1, 0.915179))
pad2 = body.newObject("PartDesign::Pad", "Pad001")
pad2.Profile = sketch2
pad2.Length = 7
body2 = doc.addObject("PartDesign::Body", "Body001")
doc.recompute()

body2.BaseFeature = body
doc.recompute()

body3 = doc.addObject("PartDesign::Body", "Body002")
body3.BaseFeature = body
body3.Placement = App.Placement(Vector(0, 0, 0), App.Rotation(Vector(0, 0, 1), 120))
boolean = body2.newObject("PartDesign::Boolean", "Boolean")
boolean.Type = "Fuse"
boolean.addObjects([body3])
doc.recompute()

body.Placement = App.Placement(Vector(0, 0, 0), App.Rotation(Vector(0, 0, 1), 240))
boolean2 = body2.newObject("PartDesign::Boolean", "Boolean001")
boolean2.Type = "Fuse"
boolean2.addObjects([body])

doc.recompute()
